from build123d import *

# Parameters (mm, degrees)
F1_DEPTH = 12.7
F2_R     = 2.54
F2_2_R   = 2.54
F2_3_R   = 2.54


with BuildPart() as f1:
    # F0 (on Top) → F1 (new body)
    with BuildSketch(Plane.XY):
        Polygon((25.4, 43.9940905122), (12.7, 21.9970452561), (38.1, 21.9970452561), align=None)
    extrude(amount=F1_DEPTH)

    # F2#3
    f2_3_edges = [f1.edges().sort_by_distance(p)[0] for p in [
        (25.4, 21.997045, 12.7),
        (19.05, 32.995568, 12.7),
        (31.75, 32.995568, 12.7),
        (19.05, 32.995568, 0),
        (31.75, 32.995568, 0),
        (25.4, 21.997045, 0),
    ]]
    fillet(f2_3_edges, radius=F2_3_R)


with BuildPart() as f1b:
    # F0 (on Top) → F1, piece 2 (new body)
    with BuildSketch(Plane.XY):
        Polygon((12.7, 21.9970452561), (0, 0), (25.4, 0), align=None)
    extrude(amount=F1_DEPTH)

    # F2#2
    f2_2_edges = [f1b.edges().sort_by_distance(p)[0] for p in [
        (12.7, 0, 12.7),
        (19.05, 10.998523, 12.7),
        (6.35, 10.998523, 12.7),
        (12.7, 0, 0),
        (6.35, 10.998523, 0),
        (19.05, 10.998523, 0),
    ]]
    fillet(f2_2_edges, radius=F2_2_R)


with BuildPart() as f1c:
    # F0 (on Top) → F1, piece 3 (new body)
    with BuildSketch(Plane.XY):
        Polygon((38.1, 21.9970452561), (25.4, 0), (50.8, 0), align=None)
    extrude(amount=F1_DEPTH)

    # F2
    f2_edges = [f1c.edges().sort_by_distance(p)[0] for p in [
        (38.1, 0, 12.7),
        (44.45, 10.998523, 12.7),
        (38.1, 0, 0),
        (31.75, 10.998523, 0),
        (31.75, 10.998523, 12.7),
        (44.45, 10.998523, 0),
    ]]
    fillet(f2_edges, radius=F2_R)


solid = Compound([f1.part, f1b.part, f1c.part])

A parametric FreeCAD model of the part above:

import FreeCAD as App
import Part
import Sketcher
Q = App.Units.Quantity


def edges_at(feature, points):
    """Names of the edges that pass closest to the given points."""
    edges = feature.Shape.Edges
    near = lambda p: min(range(len(edges)), key=lambda i: edges[i].distToShape(Part.Vertex(*p))[0])
    return sorted({f"Edge{near(p) + 1}" for p in points})

doc = App.newDocument("Part")
body = doc.addObject("PartDesign::Body", "Body")

# Sketch on XY plane
sketch1 = doc.addObject("Sketcher::SketchObject", "Sketch")
body.addObject(sketch1)
sketch1.AttachmentSupport = (doc.XY_Plane, [""])
sketch1.MapMode = "FlatFace"
sketch1.addGeometry([
    Part.LineSegment(App.Vector(25.4, 43.994091, 0), App.Vector(12.7, 21.997045, 0)),
    Part.LineSegment(App.Vector(12.7, 21.997045, 0), App.Vector(38.1, 21.997045, 0)),
    Part.LineSegment(App.Vector(38.1, 21.997045, 0), App.Vector(25.4, 43.994091, 0)),
], False)
sketch1.addConstraint([
    Sketcher.Constraint("Coincident", 0, 2, 1, 1),
    Sketcher.Constraint("Coincident", 1, 2, 2, 1),
    Sketcher.Constraint("Coincident", 2, 2, 0, 1),
    Sketcher.Constraint("Horizontal", 1),
    Sketcher.Constraint("Equal", 0, 2),
    Sketcher.Constraint("DistanceX", 1, 1, 1, 2, Q("1 in")),
    Sketcher.Constraint("Distance", 0, Q("1 in")),
    Sketcher.Constraint("DistanceX", -1, 1, 2, 2, Q("1 in")),
    Sketcher.Constraint("DistanceY", -1, 1, 2, 2, Q("43.994091 mm")),
])
pad1 = doc.addObject("PartDesign::Pad", "Pad")
body.addObject(pad1)
pad1.Profile = sketch1
pad1.Length = Q("0.5 in")
doc.recompute()

fillet = doc.addObject("PartDesign::Fillet", "Fillet")
body.addObject(fillet)
fillet.Base = (pad1, edges_at(pad1, [
    (25.4, 21.997, 12.7),
    (19.05, 32.996, 12.7),
    (31.75, 32.996, 12.7),
    (19.05, 32.996, 0),
    (31.75, 32.996, 0),
    (25.4, 21.997, 0),
]))
fillet.Radius = Q("0.1 in")
body2 = doc.addObject("PartDesign::Body", "Body001")

# Sketch on XY plane
sketch2 = doc.addObject("Sketcher::SketchObject", "Sketch001")
body2.addObject(sketch2)
sketch2.AttachmentSupport = (doc.getObject("XY_Plane001"), [""])
sketch2.MapMode = "FlatFace"
sketch2.addGeometry([
    Part.LineSegment(App.Vector(12.7, 21.997045, 0), App.Vector(0, 0, 0)),
    Part.LineSegment(App.Vector(0, 0, 0), App.Vector(25.4, 0, 0)),
    Part.LineSegment(App.Vector(25.4, 0, 0), App.Vector(12.7, 21.997045, 0)),
], False)
sketch2.addConstraint([
    Sketcher.Constraint("Coincident", 0, 2, 1, 1),
    Sketcher.Constraint("Coincident", 1, 2, 2, 1),
    Sketcher.Constraint("Coincident", 2, 2, 0, 1),
    Sketcher.Constraint("Horizontal", 1),
    Sketcher.Constraint("Coincident", 0, 2, -1, 1),
    Sketcher.Constraint("Equal", 0, 2),
    Sketcher.Constraint("DistanceX", 1, 1, 1, 2, Q("1 in")),
    Sketcher.Constraint("Distance", 0, Q("1 in")),
])
pad2 = doc.addObject("PartDesign::Pad", "Pad001")
body2.addObject(pad2)
pad2.Profile = sketch2
pad2.Length = Q("0.5 in")
doc.recompute()

fillet2 = doc.addObject("PartDesign::Fillet", "Fillet001")
body2.addObject(fillet2)
fillet2.Base = (pad2, edges_at(pad2, [
    (12.7, 0, 12.7),
    (19.05, 10.999, 12.7),
    (6.35, 10.999, 12.7),
    (12.7, 0, 0),
    (6.35, 10.999, 0),
    (19.05, 10.999, 0),
]))
fillet2.Radius = Q("0.1 in")
body3 = doc.addObject("PartDesign::Body", "Body002")

# Sketch on XY plane
sketch3 = doc.addObject("Sketcher::SketchObject", "Sketch002")
body3.addObject(sketch3)
sketch3.AttachmentSupport = (doc.getObject("XY_Plane002"), [""])
sketch3.MapMode = "FlatFace"
sketch3.addGeometry([
    Part.LineSegment(App.Vector(38.1, 21.997045, 0), App.Vector(25.4, 0, 0)),
    Part.LineSegment(App.Vector(25.4, 0, 0), App.Vector(50.8, 0, 0)),
    Part.LineSegment(App.Vector(50.8, 0, 0), App.Vector(38.1, 21.997045, 0)),
], False)
sketch3.addConstraint([
    Sketcher.Constraint("Coincident", 0, 2, 1, 1),
    Sketcher.Constraint("Coincident", 1, 2, 2, 1),
    Sketcher.Constraint("Coincident", 2, 2, 0, 1),
    Sketcher.Constraint("Horizontal", 1),
    Sketcher.Constraint("PointOnObject", 0, 2, -1),
    Sketcher.Constraint("Equal", 0, 2),
    Sketcher.Constraint("DistanceX", 1, 1, 1, 2, Q("1 in")),
    Sketcher.Constraint("Distance", 0, Q("1 in")),
    Sketcher.Constraint("DistanceX", -1, 1, 0, 2, Q("1 in")),
])
pad3 = doc.addObject("PartDesign::Pad", "Pad002")
body3.addObject(pad3)
pad3.Profile = sketch3
pad3.Length = Q("0.5 in")
doc.recompute()

fillet3 = doc.addObject("PartDesign::Fillet", "Fillet002")
body3.addObject(fillet3)
fillet3.Base = (pad3, edges_at(pad3, [
    (38.1, 0, 12.7),
    (44.45, 10.999, 12.7),
    (38.1, 0, 0),
    (31.75, 10.999, 0),
    (31.75, 10.999, 12.7),
    (44.45, 10.999, 0),
]))
fillet3.Radius = Q("0.1 in")

doc.recompute()
